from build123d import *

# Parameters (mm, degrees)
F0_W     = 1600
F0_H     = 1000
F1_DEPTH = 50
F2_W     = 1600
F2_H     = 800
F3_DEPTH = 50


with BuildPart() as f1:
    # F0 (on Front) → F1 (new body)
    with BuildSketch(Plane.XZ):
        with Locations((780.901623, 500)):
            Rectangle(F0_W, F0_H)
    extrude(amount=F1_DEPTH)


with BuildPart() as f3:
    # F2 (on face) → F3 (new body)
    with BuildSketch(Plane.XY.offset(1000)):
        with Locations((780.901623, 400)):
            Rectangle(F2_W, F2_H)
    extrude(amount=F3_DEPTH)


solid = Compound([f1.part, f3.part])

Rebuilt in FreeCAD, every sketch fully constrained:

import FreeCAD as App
import Part
import Sketcher

V = App.Vector

doc = App.newDocument("Part")
body = doc.addObject("PartDesign::Body", "Body")

sketch1 = body.newObject("Sketcher::SketchObject", "Sketch")
sketch1.AttachmentSupport = (doc.getObject("XZ_Plane"), [""])
sketch1.MapMode = "FlatFace"
sketch1.addGeometry(Part.LineSegment(V(-19.098377, 1000, 0), V(-19.098377, 0, 0)), False)
sketch1.addGeometry(Part.LineSegment(V(-19.098377, 0, 0), V(1580.901623, 0, 0)), False)
sketch1.addGeometry(Part.LineSegment(V(1580.901623, 0, 0), V(1580.901623, 1000, 0)), False)
sketch1.addGeometry(Part.LineSegment(V(1580.901623, 1000, 0), V(-19.098377, 1000, 0)), False)
sketch1.addConstraint(Sketcher.Constraint("Coincident", 0, 2, 1, 1))
sketch1.addConstraint(Sketcher.Constraint("Coincident", 1, 2, 2, 1))
sketch1.addConstraint(Sketcher.Constraint("Coincident", 2, 2, 3, 1))
sketch1.addConstraint(Sketcher.Constraint("Coincident", 3, 2, 0, 1))
sketch1.addConstraint(Sketcher.Constraint("Vertical", 0))
sketch1.addConstraint(Sketcher.Constraint("Horizontal", 1))
sketch1.addConstraint(Sketcher.Constraint("Vertical", 2))
sketch1.addConstraint(Sketcher.Constraint("Horizontal", 3))
sketch1.addConstraint(Sketcher.Constraint("PointOnObject", 0, 2, -1))
sketch1.addConstraint(Sketcher.Constraint("DistanceX", 1, 1, 1, 2, 1600.0))
sketch1.addConstraint(Sketcher.Constraint("DistanceY", 0, 2, 0, 1, 1000.0))
sketch1.addConstraint(Sketcher.Constraint("DistanceX", 0, 2, -1, 1, 19.098377))
pad1 = body.newObject("PartDesign::Pad", "Pad")
pad1.Profile = sketch1
pad1.Length = 50
body2 = doc.addObject("PartDesign::Body", "Body001")

sketch2 = body2.newObject("Sketcher::SketchObject", "Sketch001")
sketch2.AttachmentSupport = (doc.getObject("XY_Plane001"), [""])
sketch2.MapMode = "FlatFace"
sketch2.AttachmentOffset = App.Placement(V(0, 0, 1000), App.Rotation())
sketch2.addGeometry(Part.LineSegment(V(-19.098377, 800, 0), V(-19.098377, 0, 0)), False)
sketch2.addGeometry(Part.LineSegment(V(-19.098377, 0, 0), V(1580.901623, 0, 0)), False)
sketch2.addGeometry(Part.LineSegment(V(1580.901623, 0, 0), V(1580.901623, 800, 0)), False)
sketch2.addGeometry(Part.LineSegment(V(1580.901623, 800, 0), V(-19.098377, 800, 0)), False)
sketch2.addConstraint(Sketcher.Constraint("Coincident", 0, 2, 1, 1))
sketch2.addConstraint(Sketcher.Constraint("Coincident", 1, 2, 2, 1))
sketch2.addConstraint(Sketcher.Constraint("Coincident", 2, 2, 3, 1))
sketch2.addConstraint(Sketcher.Constraint("Coincident", 3, 2, 0, 1))
sketch2.addConstraint(Sketcher.Constraint("Vertical", 0))
sketch2.addConstraint(Sketcher.Constraint("Horizontal", 1))
sketch2.addConstraint(Sketcher.Constraint("Vertical", 2))
sketch2.addConstraint(Sketcher.Constraint("Horizontal", 3))
sketch2.addConstraint(Sketcher.Constraint("PointOnObject", 0, 2, -1))
sketch2.addConstraint(Sketcher.Constraint("DistanceX", 1, 1, 1, 2, 1600.0))
sketch2.addConstraint(Sketcher.Constraint("DistanceY", 0, 2, 0, 1, 800.0))
sketch2.addConstraint(Sketcher.Constraint("DistanceX", 0, 2, -1, 1, 19.098377))
pad2 = body2.newObject("PartDesign::Pad", "Pad001")
pad2.Profile = sketch2
pad2.Length = 50

doc.recompute()
